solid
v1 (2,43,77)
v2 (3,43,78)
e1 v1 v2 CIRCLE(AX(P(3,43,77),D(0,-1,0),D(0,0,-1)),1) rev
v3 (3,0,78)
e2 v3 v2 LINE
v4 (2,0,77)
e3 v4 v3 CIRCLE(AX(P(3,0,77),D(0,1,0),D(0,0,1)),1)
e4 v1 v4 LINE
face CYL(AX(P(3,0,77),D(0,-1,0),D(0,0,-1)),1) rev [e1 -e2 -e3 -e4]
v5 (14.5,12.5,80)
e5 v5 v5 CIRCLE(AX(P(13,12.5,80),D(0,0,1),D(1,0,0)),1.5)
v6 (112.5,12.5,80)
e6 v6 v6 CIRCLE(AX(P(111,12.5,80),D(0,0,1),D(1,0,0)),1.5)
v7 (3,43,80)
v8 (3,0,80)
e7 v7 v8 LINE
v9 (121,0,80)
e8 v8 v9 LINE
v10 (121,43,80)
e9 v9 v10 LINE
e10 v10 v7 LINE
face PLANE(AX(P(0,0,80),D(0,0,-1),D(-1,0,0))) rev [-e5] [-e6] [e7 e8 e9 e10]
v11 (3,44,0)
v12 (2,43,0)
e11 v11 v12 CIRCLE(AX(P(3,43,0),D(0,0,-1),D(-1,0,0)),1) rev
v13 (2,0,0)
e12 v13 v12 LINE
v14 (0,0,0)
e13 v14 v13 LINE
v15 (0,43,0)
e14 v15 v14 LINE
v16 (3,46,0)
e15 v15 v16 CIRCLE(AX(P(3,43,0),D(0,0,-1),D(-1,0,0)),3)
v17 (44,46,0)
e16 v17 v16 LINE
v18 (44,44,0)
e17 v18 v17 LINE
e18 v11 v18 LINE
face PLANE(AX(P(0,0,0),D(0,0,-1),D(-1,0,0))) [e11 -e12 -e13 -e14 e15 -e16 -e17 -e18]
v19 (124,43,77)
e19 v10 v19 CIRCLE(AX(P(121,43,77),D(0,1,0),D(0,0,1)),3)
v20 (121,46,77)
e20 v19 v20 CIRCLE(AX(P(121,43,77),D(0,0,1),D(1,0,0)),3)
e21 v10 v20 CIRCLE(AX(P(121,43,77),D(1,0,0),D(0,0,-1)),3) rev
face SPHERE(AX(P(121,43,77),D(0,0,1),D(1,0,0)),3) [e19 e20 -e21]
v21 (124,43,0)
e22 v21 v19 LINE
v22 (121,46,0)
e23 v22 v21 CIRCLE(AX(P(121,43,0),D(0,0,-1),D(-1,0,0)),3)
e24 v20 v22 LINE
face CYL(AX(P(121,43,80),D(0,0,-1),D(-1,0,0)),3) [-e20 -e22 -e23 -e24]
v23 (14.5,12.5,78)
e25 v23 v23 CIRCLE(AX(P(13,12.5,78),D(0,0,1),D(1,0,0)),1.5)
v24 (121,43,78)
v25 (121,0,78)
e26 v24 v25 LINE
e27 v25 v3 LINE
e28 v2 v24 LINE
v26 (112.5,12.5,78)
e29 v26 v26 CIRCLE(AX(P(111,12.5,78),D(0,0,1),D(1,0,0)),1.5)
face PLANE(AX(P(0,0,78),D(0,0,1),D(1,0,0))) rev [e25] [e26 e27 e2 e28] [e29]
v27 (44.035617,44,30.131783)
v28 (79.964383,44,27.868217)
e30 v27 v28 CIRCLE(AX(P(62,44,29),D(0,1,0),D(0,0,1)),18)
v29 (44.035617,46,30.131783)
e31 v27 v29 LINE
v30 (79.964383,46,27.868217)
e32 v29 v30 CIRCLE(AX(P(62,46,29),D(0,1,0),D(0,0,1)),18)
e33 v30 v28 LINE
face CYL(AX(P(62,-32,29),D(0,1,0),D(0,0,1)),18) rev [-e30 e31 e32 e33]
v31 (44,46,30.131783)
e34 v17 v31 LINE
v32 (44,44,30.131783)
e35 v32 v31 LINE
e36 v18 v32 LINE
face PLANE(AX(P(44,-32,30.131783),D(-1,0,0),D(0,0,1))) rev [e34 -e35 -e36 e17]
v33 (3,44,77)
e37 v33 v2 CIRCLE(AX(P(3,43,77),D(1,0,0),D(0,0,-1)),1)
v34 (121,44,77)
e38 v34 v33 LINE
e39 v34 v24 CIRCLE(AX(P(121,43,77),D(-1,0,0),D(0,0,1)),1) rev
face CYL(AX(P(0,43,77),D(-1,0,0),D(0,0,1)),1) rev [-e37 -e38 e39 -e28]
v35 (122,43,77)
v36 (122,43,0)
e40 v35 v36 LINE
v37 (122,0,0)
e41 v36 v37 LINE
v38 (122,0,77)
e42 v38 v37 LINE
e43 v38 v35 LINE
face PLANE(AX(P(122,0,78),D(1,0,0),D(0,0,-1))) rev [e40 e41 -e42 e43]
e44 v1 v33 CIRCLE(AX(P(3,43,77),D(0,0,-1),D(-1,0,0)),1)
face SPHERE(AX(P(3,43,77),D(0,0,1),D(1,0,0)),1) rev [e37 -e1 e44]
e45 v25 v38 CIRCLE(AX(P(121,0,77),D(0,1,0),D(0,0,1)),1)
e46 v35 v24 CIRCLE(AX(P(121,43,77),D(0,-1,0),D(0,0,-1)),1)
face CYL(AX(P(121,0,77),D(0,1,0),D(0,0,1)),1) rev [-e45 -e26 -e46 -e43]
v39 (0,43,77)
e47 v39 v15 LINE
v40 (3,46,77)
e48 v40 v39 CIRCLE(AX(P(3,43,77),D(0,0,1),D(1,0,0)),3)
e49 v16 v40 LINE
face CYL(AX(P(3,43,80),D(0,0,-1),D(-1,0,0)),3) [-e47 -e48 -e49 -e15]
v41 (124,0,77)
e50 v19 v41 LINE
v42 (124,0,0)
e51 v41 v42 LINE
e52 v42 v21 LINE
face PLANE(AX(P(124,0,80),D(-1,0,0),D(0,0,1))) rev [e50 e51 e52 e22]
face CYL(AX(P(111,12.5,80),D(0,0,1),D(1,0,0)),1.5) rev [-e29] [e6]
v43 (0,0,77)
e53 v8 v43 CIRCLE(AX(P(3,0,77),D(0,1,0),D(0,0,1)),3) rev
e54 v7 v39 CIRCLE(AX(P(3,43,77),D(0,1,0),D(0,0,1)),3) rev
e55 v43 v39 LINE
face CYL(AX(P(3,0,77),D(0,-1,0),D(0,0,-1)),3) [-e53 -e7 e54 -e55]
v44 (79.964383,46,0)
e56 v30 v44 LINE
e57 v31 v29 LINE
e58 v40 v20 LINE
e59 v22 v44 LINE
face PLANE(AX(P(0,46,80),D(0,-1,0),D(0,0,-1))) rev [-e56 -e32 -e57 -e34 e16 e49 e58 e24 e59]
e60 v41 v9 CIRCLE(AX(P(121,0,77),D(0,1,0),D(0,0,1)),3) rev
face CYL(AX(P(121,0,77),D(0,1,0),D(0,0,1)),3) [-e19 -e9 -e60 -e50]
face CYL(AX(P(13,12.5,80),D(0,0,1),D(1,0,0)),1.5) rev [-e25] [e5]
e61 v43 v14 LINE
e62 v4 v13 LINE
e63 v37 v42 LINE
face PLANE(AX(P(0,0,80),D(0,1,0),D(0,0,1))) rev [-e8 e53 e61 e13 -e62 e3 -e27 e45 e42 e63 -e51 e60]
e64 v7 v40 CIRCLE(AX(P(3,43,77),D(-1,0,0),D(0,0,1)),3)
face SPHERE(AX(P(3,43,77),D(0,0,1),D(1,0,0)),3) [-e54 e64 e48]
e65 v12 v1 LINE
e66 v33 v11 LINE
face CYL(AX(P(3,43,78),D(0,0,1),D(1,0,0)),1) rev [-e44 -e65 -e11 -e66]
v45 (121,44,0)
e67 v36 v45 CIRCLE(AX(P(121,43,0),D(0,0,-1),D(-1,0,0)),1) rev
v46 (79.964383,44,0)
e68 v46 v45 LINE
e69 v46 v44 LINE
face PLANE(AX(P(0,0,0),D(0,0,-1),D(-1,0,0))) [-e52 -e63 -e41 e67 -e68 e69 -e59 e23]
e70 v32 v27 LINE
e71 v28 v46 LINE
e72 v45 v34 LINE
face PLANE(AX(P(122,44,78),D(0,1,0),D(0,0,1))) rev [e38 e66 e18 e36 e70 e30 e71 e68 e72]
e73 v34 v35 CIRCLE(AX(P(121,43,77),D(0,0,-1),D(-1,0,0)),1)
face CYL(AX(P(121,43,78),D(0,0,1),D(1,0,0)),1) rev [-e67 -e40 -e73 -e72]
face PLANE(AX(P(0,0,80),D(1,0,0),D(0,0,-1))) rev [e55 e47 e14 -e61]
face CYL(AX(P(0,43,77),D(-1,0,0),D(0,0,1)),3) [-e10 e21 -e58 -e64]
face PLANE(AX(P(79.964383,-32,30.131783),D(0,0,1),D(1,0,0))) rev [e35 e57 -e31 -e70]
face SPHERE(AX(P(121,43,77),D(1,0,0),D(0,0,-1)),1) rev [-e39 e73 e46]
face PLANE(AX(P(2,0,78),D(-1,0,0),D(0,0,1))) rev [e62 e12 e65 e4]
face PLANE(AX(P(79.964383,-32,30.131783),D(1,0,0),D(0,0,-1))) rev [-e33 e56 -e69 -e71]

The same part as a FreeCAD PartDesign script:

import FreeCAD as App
import Part
import Sketcher


def edges_at(feature, points):
    """Names of the edges that pass closest to the given points."""
    edges = feature.Shape.Edges
    near = lambda p: min(range(len(edges)), key=lambda i: edges[i].distToShape(Part.Vertex(*p))[0])
    return sorted({f"Edge{near(p) + 1}" for p in points})


def add_polygon(sketch, points):
    """Adds a closed chain of lines whose ends are joined by coincident constraints."""
    first, n = sketch.GeometryCount, len(points)
    for a, b in zip(points, points[1:] + points[:1]):
        sketch.addGeometry(Part.LineSegment(App.Vector(*a, 0), App.Vector(*b, 0)), False)
    for i in range(n):
        sketch.addConstraint(Sketcher.Constraint("Coincident", first + i, 2, first + (i + 1) % n, 1))

doc = App.newDocument("Part")
body = doc.addObject("PartDesign::Body", "Body")

# Sketch on XY plane
sketch1 = body.newObject("Sketcher::SketchObject", "Sketch")
sketch1.AttachmentSupport = (doc.getObject("XY_Plane"), [""])
sketch1.MapMode = "FlatFace"
add_polygon(sketch1, [(0, 46), (0, 0), (124, 0), (124, 46)])  # lines 0-3
sketch1.addConstraint(Sketcher.Constraint("Vertical", 0))
sketch1.addConstraint(Sketcher.Constraint("Horizontal", 1))
sketch1.addConstraint(Sketcher.Constraint("Vertical", 2))
sketch1.addConstraint(Sketcher.Constraint("Horizontal", 3))
sketch1.addConstraint(Sketcher.Constraint("Coincident", 0, 2, -1, 1))
sketch1.addConstraint(Sketcher.Constraint("DistanceX", 1, 1, 1, 2, 124.0))
sketch1.addConstraint(Sketcher.Constraint("DistanceY", 0, 2, 0, 1, 46.0))
pad1 = body.newObject("PartDesign::Pad", "Pad")
pad1.Profile = sketch1
pad1.Length = 80

# Sketch on XY plane
sketch2 = body.newObject("Sketcher::SketchObject", "Sketch001")
sketch2.AttachmentSupport = (doc.getObject("XY_Plane"), [""])
sketch2.MapMode = "FlatFace"
add_polygon(sketch2, [(122, 44), (122, 0), (2, 0), (2, 44)])  # lines 0-3
sketch2.addConstraint(Sketcher.Constraint("Vertical", 0))
sketch2.addConstraint(Sketcher.Constraint("Horizontal", 1))
sketch2.addConstraint(Sketcher.Constraint("Vertical", 2))
sketch2.addConstraint(Sketcher.Constraint("Horizontal", 3))
sketch2.addConstraint(Sketcher.Constraint("PointOnObject", 0, 2, -1))
sketch2.addConstraint(Sketcher.Constraint("DistanceX", 1, 2, 1, 1, 120.0))
sketch2.addConstraint(Sketcher.Constraint("DistanceY", 0, 2, 0, 1, 44.0))
sketch2.addConstraint(Sketcher.Constraint("DistanceX", -1, 1, 0, 2, 122.0))
pocket1 = body.newObject("PartDesign::Pocket", "Pocket")
pocket1.Profile = sketch2
pocket1.Length = 78
pocket1.Reversed = True

# Sketch on XZ plane
sketch3 = body.newObject("Sketcher::SketchObject", "Sketch002")
sketch3.AttachmentSupport = (doc.getObject("XZ_Plane"), [""])
sketch3.MapMode = "FlatFace"
sketch3.AttachmentOffset = App.Placement(App.Vector(0, 0, -46), App.Rotation())
sketch3.addGeometry(Part.Circle(App.Vector(62, 29, 0), App.Vector(0, 0, 1), 18), False)
sketch3.addConstraint(Sketcher.Constraint("Diameter", 0, 36.0))
sketch3.addConstraint(Sketcher.Constraint("DistanceX", -1, 1, 0, 3, 62.0))
sketch3.addConstraint(Sketcher.Constraint("DistanceY", -1, 1, 0, 3, 29.0))
pocket2 = body.newObject("PartDesign::Pocket", "Pocket001")
pocket2.Profile = sketch3
pocket2.Length = 78
pocket2.Reversed = True

# Sketch on XZ plane
sketch4 = body.newObject("Sketcher::SketchObject", "Sketch003")
sketch4.AttachmentSupport = (doc.getObject("XZ_Plane"), [""])
sketch4.MapMode = "FlatFace"
sketch4.AttachmentOffset = App.Placement(App.Vector(0, 0, -46), App.Rotation())
add_polygon(sketch4, [(44, 0), (44, 30), (80, 30), (80, 0)])  # lines 0-3
sketch4.addConstraint(Sketcher.Constraint("Vertical", 0))
sketch4.addConstraint(Sketcher.Constraint("Horizontal", 1))
sketch4.addConstraint(Sketcher.Constraint("Vertical", 2))
sketch4.addConstraint(Sketcher.Constraint("Horizontal", 3))
sketch4.addConstraint(Sketcher.Constraint("PointOnObject", 2, 2, -1))
sketch4.addConstraint(Sketcher.Constraint("DistanceX", -1, 1, 0, 2, 44.0))
sketch4.addConstraint(Sketcher.Constraint("DistanceX", 1, 1, 1, 2, 35.964383))
sketch4.addConstraint(Sketcher.Constraint("DistanceY", 0, 1, 0, 2, 30.131783))
pocket3 = body.newObject("PartDesign::Pocket", "Pocket002")
pocket3.Profile = sketch4
pocket3.Length = 78
pocket3.Reversed = True
doc.recompute()

fillet = body.newObject("PartDesign::Fillet", "Fillet")
fillet.Base = (pocket3, edges_at(pocket3, [(62, 44, 78), (2, 22, 78), (2, 44, 39)]))
fillet.Radius = 1
doc.recompute()

fillet2 = body.newObject("PartDesign::Fillet", "Fillet001")
fillet2.Base = (fillet, edges_at(fillet, [(122, 21.5, 78), (122, 44, 38.5), (122, 43.707, 77.707)]))
fillet2.Radius = 1
doc.recompute()

fillet3 = body.newObject("PartDesign::Fillet", "Fillet002")
fillet3.Base = (fillet2, edges_at(fillet2, [
    (124, 23, 80),
    (62, 46, 80),
    (0, 23, 80),
    (0, 46, 40),
    (124, 46, 40),
]))
fillet3.Radius = 3

# Sketch on XY plane
sketch5 = body.newObject("Sketcher::SketchObject", "Sketch004")
sketch5.AttachmentSupport = (doc.getObject("XY_Plane"), [""])
sketch5.MapMode = "FlatFace"
sketch5.AttachmentOffset = App.Placement(App.Vector(0, 0, 80), App.Rotation())
sketch5.addGeometry(Part.Circle(App.Vector(13, 12.5, 0), App.Vector(0, 0, 1), 1.5), False)
sketch5.addGeometry(Part.Circle(App.Vector(111, 12.5, 0), App.Vector(0, 0, 1), 1.5), False)
sketch5.addConstraint(Sketcher.Constraint("Equal", 0, 1))
sketch5.addConstraint(Sketcher.Constraint("Horizontal", 0, 3, 1, 3))
sketch5.addConstraint(Sketcher.Constraint("Diameter", 0, 3.0))
sketch5.addConstraint(Sketcher.Constraint("DistanceX", -1, 1, 0, 3, 13.0))
sketch5.addConstraint(Sketcher.Constraint("DistanceX", -1, 1, 1, 3, 111.0))
sketch5.addConstraint(Sketcher.Constraint("DistanceY", -1, 1, 0, 3, 12.5))
doc.recompute()
hole = body.newObject("PartDesign::Hole", "Hole")
hole.Profile = sketch5
hole.ThreadType = "None"
hole.Diameter = 3
hole.DepthType = "ThroughAll"

doc.recompute()
